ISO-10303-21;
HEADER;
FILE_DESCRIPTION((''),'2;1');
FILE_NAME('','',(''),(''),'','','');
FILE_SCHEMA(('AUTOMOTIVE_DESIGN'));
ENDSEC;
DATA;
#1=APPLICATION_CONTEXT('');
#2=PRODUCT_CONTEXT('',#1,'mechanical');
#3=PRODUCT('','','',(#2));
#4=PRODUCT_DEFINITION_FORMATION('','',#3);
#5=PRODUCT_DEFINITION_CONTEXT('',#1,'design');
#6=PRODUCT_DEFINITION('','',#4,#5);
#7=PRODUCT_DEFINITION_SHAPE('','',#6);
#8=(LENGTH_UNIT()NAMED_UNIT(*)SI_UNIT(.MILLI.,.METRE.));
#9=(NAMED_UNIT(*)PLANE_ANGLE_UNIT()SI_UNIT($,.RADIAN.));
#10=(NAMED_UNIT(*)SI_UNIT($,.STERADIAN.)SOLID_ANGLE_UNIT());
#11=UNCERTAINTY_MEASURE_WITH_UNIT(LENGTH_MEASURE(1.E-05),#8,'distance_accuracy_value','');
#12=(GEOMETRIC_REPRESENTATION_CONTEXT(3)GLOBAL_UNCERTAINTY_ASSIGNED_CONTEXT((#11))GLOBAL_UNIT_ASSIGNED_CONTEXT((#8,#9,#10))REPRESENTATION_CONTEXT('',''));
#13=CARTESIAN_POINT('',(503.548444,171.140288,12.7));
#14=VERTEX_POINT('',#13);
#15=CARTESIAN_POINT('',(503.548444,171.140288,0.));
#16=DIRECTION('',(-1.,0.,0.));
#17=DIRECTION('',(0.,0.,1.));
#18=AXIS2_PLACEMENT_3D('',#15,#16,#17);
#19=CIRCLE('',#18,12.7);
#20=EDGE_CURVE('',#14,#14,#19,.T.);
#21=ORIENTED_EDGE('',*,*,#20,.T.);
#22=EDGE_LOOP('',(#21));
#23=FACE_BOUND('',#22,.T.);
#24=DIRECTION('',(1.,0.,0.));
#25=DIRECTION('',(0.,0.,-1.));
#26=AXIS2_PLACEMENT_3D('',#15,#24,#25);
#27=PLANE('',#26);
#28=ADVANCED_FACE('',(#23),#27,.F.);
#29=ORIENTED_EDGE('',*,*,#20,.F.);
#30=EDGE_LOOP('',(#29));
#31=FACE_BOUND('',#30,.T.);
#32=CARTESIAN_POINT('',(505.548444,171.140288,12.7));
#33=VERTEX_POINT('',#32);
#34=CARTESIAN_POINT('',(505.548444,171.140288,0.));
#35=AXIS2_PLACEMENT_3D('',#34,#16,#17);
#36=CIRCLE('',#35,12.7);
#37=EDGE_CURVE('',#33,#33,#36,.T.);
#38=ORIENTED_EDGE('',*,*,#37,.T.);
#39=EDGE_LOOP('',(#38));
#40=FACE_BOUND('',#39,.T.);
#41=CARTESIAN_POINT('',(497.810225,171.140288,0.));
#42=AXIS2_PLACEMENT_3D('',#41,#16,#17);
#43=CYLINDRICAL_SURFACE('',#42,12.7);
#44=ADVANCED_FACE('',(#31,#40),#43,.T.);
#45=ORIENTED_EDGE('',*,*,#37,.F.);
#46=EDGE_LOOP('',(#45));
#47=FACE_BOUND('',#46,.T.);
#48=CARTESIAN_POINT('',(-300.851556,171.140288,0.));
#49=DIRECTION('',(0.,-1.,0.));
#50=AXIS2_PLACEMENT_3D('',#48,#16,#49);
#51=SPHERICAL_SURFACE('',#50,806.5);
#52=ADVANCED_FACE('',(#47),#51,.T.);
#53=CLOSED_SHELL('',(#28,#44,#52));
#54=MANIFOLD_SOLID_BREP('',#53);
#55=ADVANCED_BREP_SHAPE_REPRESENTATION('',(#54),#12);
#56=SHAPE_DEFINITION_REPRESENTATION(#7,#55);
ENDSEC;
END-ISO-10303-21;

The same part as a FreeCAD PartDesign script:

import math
import FreeCAD as App
import Part
import Sketcher

doc = App.newDocument("Part")
params = doc.addObject("Spreadsheet::Sheet", "Params")
for row, (alias, value) in enumerate([
    ("sketch1_width", "2 mm"),
    ("sketch1_width2", "2.1 mm"),
    ("sketch1_height", "12.7 mm"),
    ("revolution_angle", "360 deg"),
], start=1):
    params.set(f"A{row}", alias)
    params.set(f"B{row}", "=" + value)
    params.setAlias(f"B{row}", alias)

body = doc.addObject("PartDesign::Body", "Body")

# Sketch on XY plane
sketch1 = doc.addObject("Sketcher::SketchObject", "Sketch")
body.addObject(sketch1)
sketch1.AttachmentSupport = (doc.XY_Plane, [""])
sketch1.MapMode = "FlatFace"
sketch1.addGeometry([
    Part.LineSegment(App.Vector(503.5, 183.8, 0), App.Vector(503.5, 171.1, 0)),
    Part.LineSegment(App.Vector(503.5, 171.1, 0), App.Vector(505.6, 171.1, 0)),
    Part.ArcOfCircle(Part.Circle(App.Vector(-300.9, 171.1, 0), App.Vector(0, 0, 1), 806.5), math.radians(0), math.radians(0.9)),
    Part.LineSegment(App.Vector(505.5, 183.8, 0), App.Vector(503.5, 183.8, 0)),
], False)
sketch1.addGeometry(Part.LineSegment(App.Vector(-300.9, 171.1, 0), App.Vector(505.6, 171.1, 0)), True)  # axis
sketch1.addConstraint([
    Sketcher.Constraint("Coincident", 0, 2, 1, 1),
    Sketcher.Constraint("Coincident", 1, 2, 2, 1),
    Sketcher.Constraint("Coincident", 2, 2, 3, 1),
    Sketcher.Constraint("Coincident", 3, 2, 0, 1),
    Sketcher.Constraint("Vertical", 0),
    Sketcher.Constraint("Horizontal", 1),
    Sketcher.Constraint("Horizontal", 3),
    Sketcher.Constraint("Horizontal", 4),
    Sketcher.Constraint("Coincident", 4, 1, 2, 3),
    Sketcher.Constraint("Coincident", 4, 2, 1, 2),
    Sketcher.Constraint("DistanceX", 3, 2, 3, 1, 2.0),
    Sketcher.Constraint("DistanceX", 1, 1, 1, 2, 2.1),
    Sketcher.Constraint("DistanceY", 0, 2, 0, 1, 12.7),
    Sketcher.Constraint("DistanceX", 2, 3, -1, 1, 300.851573),
    Sketcher.Constraint("DistanceY", -1, 1, 2, 3, 171.140288),
])
sketch1.setExpression("Constraints[10]", "Params.sketch1_width")
sketch1.setExpression("Constraints[11]", "Params.sketch1_width2")
sketch1.setExpression("Constraints[12]", "Params.sketch1_height")
revolution = doc.addObject("PartDesign::Revolution", "Revolution")
body.addObject(revolution)
revolution.Profile = sketch1
revolution.ReferenceAxis = (sketch1, ["Axis0"])
revolution.setExpression("Angle", "Params.revolution_angle")

doc.recompute()
